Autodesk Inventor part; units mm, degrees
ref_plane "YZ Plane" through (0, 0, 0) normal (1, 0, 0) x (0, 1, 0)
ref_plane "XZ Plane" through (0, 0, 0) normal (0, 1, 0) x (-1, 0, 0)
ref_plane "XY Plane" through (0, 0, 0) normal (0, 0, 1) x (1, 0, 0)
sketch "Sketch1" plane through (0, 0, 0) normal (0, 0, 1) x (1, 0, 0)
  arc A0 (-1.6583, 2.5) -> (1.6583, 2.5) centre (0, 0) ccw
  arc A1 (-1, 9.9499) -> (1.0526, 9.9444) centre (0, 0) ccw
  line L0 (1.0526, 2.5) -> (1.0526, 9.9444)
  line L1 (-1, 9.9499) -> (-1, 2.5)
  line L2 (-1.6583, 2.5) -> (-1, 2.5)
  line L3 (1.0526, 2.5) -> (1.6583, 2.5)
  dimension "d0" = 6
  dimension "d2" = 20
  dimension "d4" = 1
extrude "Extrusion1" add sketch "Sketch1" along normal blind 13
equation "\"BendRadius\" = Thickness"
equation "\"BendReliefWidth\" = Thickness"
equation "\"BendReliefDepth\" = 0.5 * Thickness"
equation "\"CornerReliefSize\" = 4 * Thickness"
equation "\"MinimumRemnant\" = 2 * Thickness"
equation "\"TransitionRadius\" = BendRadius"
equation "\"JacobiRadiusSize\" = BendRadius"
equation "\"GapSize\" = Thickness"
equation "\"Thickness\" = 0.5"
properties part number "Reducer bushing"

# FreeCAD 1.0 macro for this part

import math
import FreeCAD as App
import Part
import Sketcher
Q = App.Units.Quantity

doc = App.newDocument("Part")
body = doc.addObject("PartDesign::Body", "Body")

sketch1 = body.newObject("Sketcher::SketchObject", "Sketch")
sketch1.AttachmentSupport = (doc.getObject("XY_Plane"), [""])
sketch1.MapMode = "FlatFace"
sketch1.addGeometry([
    Part.ArcOfCircle(Part.Circle(App.Vector(0, 0, 0), App.Vector(0, 0, 1), 3), math.radians(124), math.radians(416)),
    Part.LineSegment(App.Vector(-1.7, 2.5, 0), App.Vector(-1, 2.5, 0)),
    Part.LineSegment(App.Vector(-1, 2.5, 0), App.Vector(-1, 9.9, 0)),
    Part.ArcOfCircle(Part.Circle(App.Vector(0, 0, 0), App.Vector(0, 0, 1), 10), math.radians(96), math.radians(444)),
    Part.LineSegment(App.Vector(1.1, 9.9, 0), App.Vector(1.1, 2.5, 0)),
    Part.LineSegment(App.Vector(1.1, 2.5, 0), App.Vector(1.7, 2.5, 0)),
], False)
sketch1.addConstraint([
    Sketcher.Constraint("Coincident", 0, 1, 1, 1),
    Sketcher.Constraint("Coincident", 1, 2, 2, 1),
    Sketcher.Constraint("Coincident", 2, 2, 3, 1),
    Sketcher.Constraint("Coincident", 3, 2, 4, 1),
    Sketcher.Constraint("Coincident", 4, 2, 5, 1),
    Sketcher.Constraint("Coincident", 5, 2, 0, 2),
    Sketcher.Constraint("Horizontal", 1),
    Sketcher.Constraint("Vertical", 2),
    Sketcher.Constraint("Vertical", 4),
    Sketcher.Constraint("Horizontal", 5),
    Sketcher.Constraint("Coincident", 0, 3, -1, 1),
    Sketcher.Constraint("Coincident", 3, 3, -1, 1),
    Sketcher.Constraint("Horizontal", 1, 2, 4, 2),
    Sketcher.Constraint("Radius", 0, Q("3 mm")),
    Sketcher.Constraint("Radius", 3, Q("10 mm")),
    Sketcher.Constraint("DistanceX", 1, 2, -1, 1, Q("1 mm")),
    Sketcher.Constraint("DistanceY", 2, 1, 2, 2, Q("7.45 mm")),
    Sketcher.Constraint("DistanceX", 5, 1, 5, 2, Q("0.6057 mm")),
])
pad1 = body.newObject("PartDesign::Pad", "Pad")
pad1.Profile = sketch1
pad1.Length = 13

doc.recompute()
